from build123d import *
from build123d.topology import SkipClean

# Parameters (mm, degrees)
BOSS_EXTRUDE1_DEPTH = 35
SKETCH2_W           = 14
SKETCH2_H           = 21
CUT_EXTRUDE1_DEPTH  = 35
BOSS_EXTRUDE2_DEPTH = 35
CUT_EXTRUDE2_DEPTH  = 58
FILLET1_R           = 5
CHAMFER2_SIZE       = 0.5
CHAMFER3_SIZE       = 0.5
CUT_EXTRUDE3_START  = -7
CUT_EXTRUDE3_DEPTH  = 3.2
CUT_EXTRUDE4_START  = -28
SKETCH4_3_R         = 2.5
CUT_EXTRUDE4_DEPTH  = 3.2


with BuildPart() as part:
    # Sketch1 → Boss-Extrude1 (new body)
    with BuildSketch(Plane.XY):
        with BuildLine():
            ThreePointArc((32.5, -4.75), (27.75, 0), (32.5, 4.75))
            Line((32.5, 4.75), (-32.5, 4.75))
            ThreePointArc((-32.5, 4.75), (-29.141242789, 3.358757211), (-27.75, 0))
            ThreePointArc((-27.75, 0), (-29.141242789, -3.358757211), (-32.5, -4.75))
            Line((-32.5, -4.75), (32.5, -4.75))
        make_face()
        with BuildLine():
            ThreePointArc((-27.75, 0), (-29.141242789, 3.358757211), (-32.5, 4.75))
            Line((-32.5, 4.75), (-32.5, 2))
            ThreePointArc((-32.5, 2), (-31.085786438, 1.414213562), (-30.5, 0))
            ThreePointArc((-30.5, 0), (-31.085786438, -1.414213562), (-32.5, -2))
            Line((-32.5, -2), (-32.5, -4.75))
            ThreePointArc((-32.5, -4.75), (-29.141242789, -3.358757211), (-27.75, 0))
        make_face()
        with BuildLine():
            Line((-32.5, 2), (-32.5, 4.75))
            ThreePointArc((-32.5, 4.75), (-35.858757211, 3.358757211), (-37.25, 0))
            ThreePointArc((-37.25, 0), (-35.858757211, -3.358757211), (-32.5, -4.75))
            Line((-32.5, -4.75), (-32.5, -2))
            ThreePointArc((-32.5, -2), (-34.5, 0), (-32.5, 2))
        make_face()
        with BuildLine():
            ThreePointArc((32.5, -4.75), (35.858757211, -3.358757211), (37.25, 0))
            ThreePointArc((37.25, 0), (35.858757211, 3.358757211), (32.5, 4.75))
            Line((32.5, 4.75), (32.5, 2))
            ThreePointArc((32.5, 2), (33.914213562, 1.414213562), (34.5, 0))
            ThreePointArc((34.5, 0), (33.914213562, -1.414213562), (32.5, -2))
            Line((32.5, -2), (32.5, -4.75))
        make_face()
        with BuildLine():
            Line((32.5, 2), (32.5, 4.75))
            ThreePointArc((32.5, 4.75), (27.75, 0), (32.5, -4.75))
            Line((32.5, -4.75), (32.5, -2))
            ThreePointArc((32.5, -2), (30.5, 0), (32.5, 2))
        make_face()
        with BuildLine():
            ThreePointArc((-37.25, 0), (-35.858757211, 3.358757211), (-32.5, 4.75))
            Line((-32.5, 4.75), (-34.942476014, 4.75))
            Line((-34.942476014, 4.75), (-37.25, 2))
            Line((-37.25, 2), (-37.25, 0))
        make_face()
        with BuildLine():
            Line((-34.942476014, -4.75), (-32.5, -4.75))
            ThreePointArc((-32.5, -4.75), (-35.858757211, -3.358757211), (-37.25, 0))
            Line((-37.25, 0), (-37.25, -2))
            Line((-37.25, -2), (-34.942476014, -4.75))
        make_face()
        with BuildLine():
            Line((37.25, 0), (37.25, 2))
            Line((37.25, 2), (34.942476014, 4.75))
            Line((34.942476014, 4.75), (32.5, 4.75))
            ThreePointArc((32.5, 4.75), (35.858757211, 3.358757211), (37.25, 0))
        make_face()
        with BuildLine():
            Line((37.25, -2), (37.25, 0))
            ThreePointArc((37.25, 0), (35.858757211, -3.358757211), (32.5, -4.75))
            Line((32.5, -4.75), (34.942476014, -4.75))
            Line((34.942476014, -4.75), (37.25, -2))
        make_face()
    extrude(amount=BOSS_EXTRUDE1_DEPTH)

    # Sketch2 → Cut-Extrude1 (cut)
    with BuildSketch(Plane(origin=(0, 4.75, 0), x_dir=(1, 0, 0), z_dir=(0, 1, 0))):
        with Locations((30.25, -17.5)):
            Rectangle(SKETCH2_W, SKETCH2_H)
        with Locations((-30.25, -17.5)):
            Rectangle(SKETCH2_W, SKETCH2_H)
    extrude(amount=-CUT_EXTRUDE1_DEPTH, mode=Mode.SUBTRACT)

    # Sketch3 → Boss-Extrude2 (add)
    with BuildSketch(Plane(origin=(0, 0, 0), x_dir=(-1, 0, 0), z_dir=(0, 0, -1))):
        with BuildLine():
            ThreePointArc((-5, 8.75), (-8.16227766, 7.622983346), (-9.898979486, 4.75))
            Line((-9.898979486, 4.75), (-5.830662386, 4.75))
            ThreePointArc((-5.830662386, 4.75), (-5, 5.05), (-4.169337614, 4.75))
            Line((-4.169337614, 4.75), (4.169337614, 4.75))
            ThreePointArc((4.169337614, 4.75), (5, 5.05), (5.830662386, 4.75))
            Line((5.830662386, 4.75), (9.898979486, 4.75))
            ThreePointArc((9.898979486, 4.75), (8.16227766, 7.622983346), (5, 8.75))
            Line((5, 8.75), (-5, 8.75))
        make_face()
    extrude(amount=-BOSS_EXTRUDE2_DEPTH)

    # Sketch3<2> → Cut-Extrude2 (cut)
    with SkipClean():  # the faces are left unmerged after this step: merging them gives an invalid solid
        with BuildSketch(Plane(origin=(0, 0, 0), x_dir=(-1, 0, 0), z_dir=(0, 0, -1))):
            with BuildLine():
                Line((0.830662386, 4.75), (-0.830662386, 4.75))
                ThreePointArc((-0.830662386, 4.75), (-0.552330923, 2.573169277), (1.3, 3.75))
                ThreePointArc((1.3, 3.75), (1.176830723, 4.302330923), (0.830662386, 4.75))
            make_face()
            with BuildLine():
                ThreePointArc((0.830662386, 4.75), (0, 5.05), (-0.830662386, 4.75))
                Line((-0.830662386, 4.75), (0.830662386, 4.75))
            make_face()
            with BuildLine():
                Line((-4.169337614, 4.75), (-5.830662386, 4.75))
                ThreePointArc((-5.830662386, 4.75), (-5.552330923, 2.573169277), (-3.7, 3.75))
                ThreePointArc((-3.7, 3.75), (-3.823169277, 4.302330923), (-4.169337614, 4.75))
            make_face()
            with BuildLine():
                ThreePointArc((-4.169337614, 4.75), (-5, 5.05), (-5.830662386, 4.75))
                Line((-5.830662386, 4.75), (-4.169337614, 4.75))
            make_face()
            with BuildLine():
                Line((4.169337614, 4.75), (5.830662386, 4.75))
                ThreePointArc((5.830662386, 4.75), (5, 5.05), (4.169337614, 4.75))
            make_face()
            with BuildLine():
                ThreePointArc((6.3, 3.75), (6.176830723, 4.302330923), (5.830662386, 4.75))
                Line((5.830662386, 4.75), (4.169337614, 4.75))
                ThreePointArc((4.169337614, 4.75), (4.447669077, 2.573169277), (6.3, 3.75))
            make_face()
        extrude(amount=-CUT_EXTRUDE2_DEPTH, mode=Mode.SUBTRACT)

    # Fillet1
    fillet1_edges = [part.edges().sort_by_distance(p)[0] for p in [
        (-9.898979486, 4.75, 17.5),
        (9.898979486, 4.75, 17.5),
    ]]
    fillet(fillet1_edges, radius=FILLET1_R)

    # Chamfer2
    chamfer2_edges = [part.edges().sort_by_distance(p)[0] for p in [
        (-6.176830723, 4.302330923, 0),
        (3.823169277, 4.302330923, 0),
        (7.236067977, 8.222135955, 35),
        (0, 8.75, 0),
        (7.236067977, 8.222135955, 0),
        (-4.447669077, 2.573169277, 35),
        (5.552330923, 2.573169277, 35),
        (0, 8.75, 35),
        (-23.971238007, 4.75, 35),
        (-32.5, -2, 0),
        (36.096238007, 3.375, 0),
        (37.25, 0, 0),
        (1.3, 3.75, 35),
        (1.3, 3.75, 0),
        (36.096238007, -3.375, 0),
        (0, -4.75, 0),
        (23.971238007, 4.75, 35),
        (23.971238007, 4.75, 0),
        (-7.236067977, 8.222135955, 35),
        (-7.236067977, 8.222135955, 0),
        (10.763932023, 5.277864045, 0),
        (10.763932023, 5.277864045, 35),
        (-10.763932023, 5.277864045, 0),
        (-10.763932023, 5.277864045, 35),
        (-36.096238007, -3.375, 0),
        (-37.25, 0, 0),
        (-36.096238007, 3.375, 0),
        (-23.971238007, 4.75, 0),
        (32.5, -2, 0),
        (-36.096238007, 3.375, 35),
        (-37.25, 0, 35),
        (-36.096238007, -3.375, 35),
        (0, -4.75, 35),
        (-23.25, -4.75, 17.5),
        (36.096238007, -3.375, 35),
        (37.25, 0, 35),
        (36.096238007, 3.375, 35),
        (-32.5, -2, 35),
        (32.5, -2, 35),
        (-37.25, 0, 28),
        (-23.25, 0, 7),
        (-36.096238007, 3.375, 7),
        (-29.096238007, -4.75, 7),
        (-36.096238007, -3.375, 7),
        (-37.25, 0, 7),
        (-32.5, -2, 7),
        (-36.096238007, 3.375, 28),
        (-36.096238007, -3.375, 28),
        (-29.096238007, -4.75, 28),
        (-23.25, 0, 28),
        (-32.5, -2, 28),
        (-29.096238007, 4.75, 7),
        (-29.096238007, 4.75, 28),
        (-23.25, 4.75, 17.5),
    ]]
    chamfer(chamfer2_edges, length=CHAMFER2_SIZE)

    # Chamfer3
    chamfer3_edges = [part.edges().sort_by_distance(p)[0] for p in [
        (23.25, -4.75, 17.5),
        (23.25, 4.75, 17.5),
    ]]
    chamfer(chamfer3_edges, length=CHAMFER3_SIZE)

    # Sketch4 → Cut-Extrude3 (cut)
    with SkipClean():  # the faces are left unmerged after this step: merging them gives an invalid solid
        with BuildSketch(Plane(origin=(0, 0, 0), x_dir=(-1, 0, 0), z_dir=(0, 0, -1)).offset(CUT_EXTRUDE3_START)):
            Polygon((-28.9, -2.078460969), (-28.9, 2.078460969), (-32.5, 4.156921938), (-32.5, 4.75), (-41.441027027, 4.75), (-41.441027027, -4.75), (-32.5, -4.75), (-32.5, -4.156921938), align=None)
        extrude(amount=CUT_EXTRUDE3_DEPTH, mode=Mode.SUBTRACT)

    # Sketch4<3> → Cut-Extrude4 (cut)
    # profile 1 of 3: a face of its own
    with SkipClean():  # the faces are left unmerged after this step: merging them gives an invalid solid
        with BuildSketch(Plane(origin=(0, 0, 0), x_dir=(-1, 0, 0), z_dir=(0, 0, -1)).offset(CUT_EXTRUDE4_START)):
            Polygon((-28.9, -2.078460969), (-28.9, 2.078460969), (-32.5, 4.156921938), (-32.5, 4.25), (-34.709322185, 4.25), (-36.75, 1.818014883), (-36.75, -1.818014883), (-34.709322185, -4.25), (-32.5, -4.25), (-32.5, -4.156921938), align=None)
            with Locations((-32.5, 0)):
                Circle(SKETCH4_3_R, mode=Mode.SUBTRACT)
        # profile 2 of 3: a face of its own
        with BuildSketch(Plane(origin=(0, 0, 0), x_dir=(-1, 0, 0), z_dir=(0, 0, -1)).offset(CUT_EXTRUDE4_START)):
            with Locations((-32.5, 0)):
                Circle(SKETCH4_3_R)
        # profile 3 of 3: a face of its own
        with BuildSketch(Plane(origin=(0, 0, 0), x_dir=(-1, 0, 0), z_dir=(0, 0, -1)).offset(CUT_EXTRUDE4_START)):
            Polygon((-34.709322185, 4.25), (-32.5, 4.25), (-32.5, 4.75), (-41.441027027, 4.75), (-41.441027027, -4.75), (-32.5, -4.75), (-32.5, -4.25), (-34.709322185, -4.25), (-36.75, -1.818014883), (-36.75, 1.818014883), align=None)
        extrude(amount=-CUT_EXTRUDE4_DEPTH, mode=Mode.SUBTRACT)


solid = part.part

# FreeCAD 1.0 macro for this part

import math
import FreeCAD as App
import Part
import Sketcher
Q = App.Units.Quantity


def edges_at(feature, points):
    """Names of the edges that pass closest to the given points."""
    edges = feature.Shape.Edges
    near = lambda p: min(range(len(edges)), key=lambda i: edges[i].distToShape(Part.Vertex(*p))[0])
    return sorted({f"Edge{near(p) + 1}" for p in points})


def add_polygon(sketch, points):
    """Adds a closed chain of lines whose ends are joined by coincident constraints."""
    first, n = sketch.GeometryCount, len(points)
    for a, b in zip(points, points[1:] + points[:1]):
        sketch.addGeometry(Part.LineSegment(App.Vector(*a, 0), App.Vector(*b, 0)), False)
    for i in range(n):
        sketch.addConstraint(Sketcher.Constraint("Coincident", first + i, 2, first + (i + 1) % n, 1))

doc = App.newDocument("Part")
body = doc.addObject("PartDesign::Body", "Body")

sketch1 = body.newObject("Sketcher::SketchObject", "Sketch")
sketch1.AttachmentSupport = (doc.getObject("XY_Plane"), [""])
sketch1.MapMode = "FlatFace"
add_polygon(sketch1, [(37.25, 2), (34.942476, 4.75), (-34.942476, 4.75), (-37.25, 2), (-37.25, -2), (-34.942476, -4.75), (34.942476, -4.75), (37.25, -2)])
sketch1.addGeometry(Part.ArcOfCircle(Part.Circle(App.Vector(32.5, 0, 0), App.Vector(0, 0, 1), 2), math.radians(90), math.radians(270)), False)
sketch1.addGeometry(Part.ArcOfCircle(Part.Circle(App.Vector(32.5, 0, 0), App.Vector(0, 0, 1), 2), math.radians(0), math.radians(90)), False)
sketch1.addGeometry(Part.ArcOfCircle(Part.Circle(App.Vector(32.5, 0, 0), App.Vector(0, 0, 1), 2), math.radians(-90), math.radians(0)), False)
sketch1.addGeometry(Part.ArcOfCircle(Part.Circle(App.Vector(-32.5, 0, 0), App.Vector(0, 0, 1), 2), math.radians(90), math.radians(270)), False)
sketch1.addGeometry(Part.ArcOfCircle(Part.Circle(App.Vector(-32.5, 0, 0), App.Vector(0, 0, 1), 2), math.radians(0), math.radians(90)), False)
sketch1.addGeometry(Part.ArcOfCircle(Part.Circle(App.Vector(-32.5, 0, 0), App.Vector(0, 0, 1), 2), math.radians(-90), math.radians(0)), False)
sketch1.addConstraint([
    Sketcher.Constraint("Tangent", 8, 1, 9, 2),
    Sketcher.Constraint("Tangent", 9, 1, 10, 2),
    Sketcher.Constraint("Tangent", 10, 1, 8, 2),
    Sketcher.Constraint("Tangent", 11, 1, 12, 2),
    Sketcher.Constraint("Tangent", 12, 1, 13, 2),
    Sketcher.Constraint("Tangent", 13, 1, 11, 2),
    Sketcher.Constraint("Horizontal", 1),
    Sketcher.Constraint("Vertical", 3),
    Sketcher.Constraint("Horizontal", 5),
    Sketcher.Constraint("Vertical", 7),
    Sketcher.Constraint("Equal", 10, 11),
    Sketcher.Constraint("Symmetric", 8, 3, 11, 3, -1, 1),
    Sketcher.Constraint("Symmetric", 0, 2, 4, 2, -1, 1),
    Sketcher.Constraint("Symmetric", 2, 2, 6, 2, -1, 1),
    Sketcher.Constraint("Symmetric", 8, 1, 11, 1, -2),
    Sketcher.Constraint("PointOnObject", 9, 1, -1),
    Sketcher.Constraint("PointOnObject", 12, 1, -1),
    Sketcher.Constraint("Parallel", 0, 4),
    Sketcher.Constraint("Parallel", 2, 6),
    Sketcher.Constraint("Horizontal", 3, 2, 6, 2),
    Sketcher.Constraint("Horizontal", 7, 2, 8, 1),
    Sketcher.Constraint("Vertical", 1, 2, 4, 2),
    Sketcher.Constraint("Vertical", 10, 3, 8, 1),
    Sketcher.Constraint("Vertical", 8, 1, 10, 1),
    Sketcher.Constraint("Vertical", 11, 1, 13, 1),
    Sketcher.Constraint("Radius", 8, 2.0),
    Sketcher.Constraint("Angle", 0, Q("130 deg")),
    Sketcher.Constraint("DistanceX", 11, 3, 9, 3, 65.0),
    Sketcher.Constraint("DistanceY", 5, 2, 0, 2, 9.5),
    Sketcher.Constraint("DistanceX", 2, 2, -1, 1, 37.25),
])
pad1 = body.newObject("PartDesign::Pad", "Pad")
pad1.Profile = sketch1
pad1.Length = 35

sketch2 = body.newObject("Sketcher::SketchObject", "Sketch001")
sketch2.AttachmentSupport = (doc.getObject("XZ_Plane"), [""])
sketch2.MapMode = "FlatFace"
sketch2.AttachmentOffset = App.Placement(App.Vector(0, 0, -4.75), App.Rotation())
add_polygon(sketch2, [(23.25, 7), (23.25, 28), (37.25, 28), (37.25, 7)])
add_polygon(sketch2, [(-37.25, 7), (-37.25, 28), (-23.25, 28), (-23.25, 7)])
sketch2.addConstraint([
    Sketcher.Constraint("Vertical", 0),
    Sketcher.Constraint("Horizontal", 1),
    Sketcher.Constraint("Vertical", 2),
    Sketcher.Constraint("Horizontal", 3),
    Sketcher.Constraint("Vertical", 4),
    Sketcher.Constraint("Horizontal", 5),
    Sketcher.Constraint("Vertical", 6),
    Sketcher.Constraint("Horizontal", 7),
    Sketcher.Constraint("Symmetric", 1, 2, 4, 2, -2),
    Sketcher.Constraint("Symmetric", 3, 2, 6, 2, -2),
    Sketcher.Constraint("DistanceX", 1, 1, 1, 2, 14.0),
    Sketcher.Constraint("DistanceY", 0, 1, 0, 2, 21.0),
    Sketcher.Constraint("DistanceY", -1, 1, 0, 2, 28.0),
    Sketcher.Constraint("DistanceX", 4, 2, 0, 2, 60.5),
])
pocket1 = body.newObject("PartDesign::Pocket", "Pocket")
pocket1.Profile = sketch2
pocket1.Length = 35
pocket1.Reversed = True

sketch3 = body.newObject("Sketcher::SketchObject", "Sketch002")
sketch3.AttachmentSupport = (doc.getObject("XY_Plane"), [""])
sketch3.MapMode = "FlatFace"
sketch3.addGeometry([
    Part.ArcOfCircle(Part.Circle(App.Vector(5, 3.75, 0), App.Vector(0, 0, 1), 5), math.radians(11.536959), math.radians(90)),
    Part.LineSegment(App.Vector(9.898979, 4.75, 0), App.Vector(5.830662, 4.75, 0)),
    Part.ArcOfCircle(Part.Circle(App.Vector(5, 3.75, 0), App.Vector(0, 0, 1), 1.3), math.radians(50.284863), math.radians(129.715137)),
    Part.LineSegment(App.Vector(4.169338, 4.75, 0), App.Vector(-4.169338, 4.75, 0)),
    Part.ArcOfCircle(Part.Circle(App.Vector(-5, 3.75, 0), App.Vector(0, 0, 1), 1.3), math.radians(50.284863), math.radians(129.715137)),
    Part.LineSegment(App.Vector(-5.830662, 4.75, 0), App.Vector(-9.898979, 4.75, 0)),
    Part.ArcOfCircle(Part.Circle(App.Vector(-5, 3.75, 0), App.Vector(0, 0, 1), 5), math.radians(90), math.radians(168.463041)),
    Part.LineSegment(App.Vector(-5, 8.75, 0), App.Vector(5, 8.75, 0)),
], False)
sketch3.addConstraint([
    Sketcher.Constraint("Coincident", 0, 1, 1, 1),
    Sketcher.Constraint("Coincident", 1, 2, 2, 1),
    Sketcher.Constraint("Coincident", 2, 2, 3, 1),
    Sketcher.Constraint("Coincident", 3, 2, 4, 1),
    Sketcher.Constraint("Coincident", 4, 2, 5, 1),
    Sketcher.Constraint("Coincident", 5, 2, 6, 2),
    Sketcher.Constraint("Tangent", 6, 1, 7, 1),
    Sketcher.Constraint("Tangent", 7, 2, 0, 2),
    Sketcher.Constraint("Horizontal", 1),
    Sketcher.Constraint("Horizontal", 3),
    Sketcher.Constraint("Horizontal", 5),
    Sketcher.Constraint("Horizontal", 7),
    Sketcher.Constraint("Coincident", 2, 3, 0, 3),
    Sketcher.Constraint("Coincident", 6, 3, 4, 3),
    Sketcher.Constraint("Equal", 2, 4),
    Sketcher.Constraint("Equal", 0, 6),
    Sketcher.Constraint("Symmetric", 1, 2, 4, 2, -2),
    Sketcher.Constraint("Horizontal", 1, 2, 2, 2),
    Sketcher.Constraint("Radius", 0, 5.0),
    Sketcher.Constraint("Radius", 2, 1.3),
    Sketcher.Constraint("DistanceX", 7, 1, 7, 2, 10.0),
    Sketcher.Constraint("DistanceY", 2, 3, 0, 1, 1.0),
    Sketcher.Constraint("DistanceY", -1, 1, 0, 3, 3.75),
])
pad2 = body.newObject("PartDesign::Pad", "Pad001")
pad2.Profile = sketch3
pad2.Length = 35

sketch4 = body.newObject("Sketcher::SketchObject", "Sketch003")
sketch4.AttachmentSupport = (doc.getObject("XY_Plane"), [""])
sketch4.MapMode = "FlatFace"
sketch4.addGeometry([
    Part.LineSegment(App.Vector(-0.830662, 4.75, 0), App.Vector(0.830662, 4.75, 0)),
    Part.ArcOfCircle(Part.Circle(App.Vector(0, 3.75, 0), App.Vector(0, 0, 1), 1.3), math.radians(180), math.radians(410.284863)),
    Part.ArcOfCircle(Part.Circle(App.Vector(0, 3.75, 0), App.Vector(0, 0, 1), 1.3), math.radians(129.715137), math.radians(180)),
    Part.ArcOfCircle(Part.Circle(App.Vector(0, 3.75, 0), App.Vector(0, 0, 1), 1.3), math.radians(50.284863), math.radians(129.715137)),
    Part.LineSegment(App.Vector(0.830662, 4.75, 0), App.Vector(-0.830662, 4.75, 0)),
    Part.LineSegment(App.Vector(4.169338, 4.75, 0), App.Vector(5.830662, 4.75, 0)),
    Part.ArcOfCircle(Part.Circle(App.Vector(5, 3.75, 0), App.Vector(0, 0, 1), 1.3), math.radians(180), math.radians(410.284863)),
    Part.ArcOfCircle(Part.Circle(App.Vector(5, 3.75, 0), App.Vector(0, 0, 1), 1.3), math.radians(129.715137), math.radians(180)),
    Part.ArcOfCircle(Part.Circle(App.Vector(5, 3.75, 0), App.Vector(0, 0, 1), 1.3), math.radians(50.284863), math.radians(129.715137)),
    Part.LineSegment(App.Vector(5.830662, 4.75, 0), App.Vector(4.169338, 4.75, 0)),
    Part.LineSegment(App.Vector(-4.169338, 4.75, 0), App.Vector(-5.830662, 4.75, 0)),
    Part.ArcOfCircle(Part.Circle(App.Vector(-5, 3.75, 0), App.Vector(0, 0, 1), 1.3), math.radians(50.284863), math.radians(129.715137)),
    Part.ArcOfCircle(Part.Circle(App.Vector(-5, 3.75, 0), App.Vector(0, 0, 1), 1.3), math.radians(129.715137), math.radians(180)),
    Part.LineSegment(App.Vector(-5.830662, 4.75, 0), App.Vector(-4.169338, 4.75, 0)),
    Part.ArcOfCircle(Part.Circle(App.Vector(-5, 3.75, 0), App.Vector(0, 0, 1), 1.3), math.radians(180), math.radians(410.284863)),
], False)
sketch4.addConstraint([
    Sketcher.Constraint("Coincident", 0, 2, 1, 2),
    Sketcher.Constraint("Tangent", 1, 1, 2, 2),
    Sketcher.Constraint("Coincident", 2, 1, 0, 1),
    Sketcher.Constraint("Coincident", 3, 1, 4, 1),
    Sketcher.Constraint("Coincident", 4, 2, 3, 2),
    Sketcher.Constraint("Coincident", 5, 2, 6, 2),
    Sketcher.Constraint("Tangent", 6, 1, 7, 2),
    Sketcher.Constraint("Coincident", 7, 1, 5, 1),
    Sketcher.Constraint("Coincident", 8, 1, 9, 1),
    Sketcher.Constraint("Coincident", 9, 2, 8, 2),
    Sketcher.Constraint("Coincident", 10, 1, 11, 1),
    Sketcher.Constraint("Coincident", 11, 2, 10, 2),
    Sketcher.Constraint("Coincident", 12, 1, 13, 1),
    Sketcher.Constraint("Coincident", 13, 2, 14, 2),
    Sketcher.Constraint("Tangent", 14, 1, 12, 2),
    Sketcher.Constraint("Horizontal", 0),
    Sketcher.Constraint("Horizontal", 4),
    Sketcher.Constraint("Horizontal", 5),
    Sketcher.Constraint("Horizontal", 9),
    Sketcher.Constraint("Horizontal", 10),
    Sketcher.Constraint("Horizontal", 13),
    Sketcher.Constraint("Coincident", 3, 3, 1, 3),
    Sketcher.Constraint("Coincident", 8, 3, 6, 3),
    Sketcher.Constraint("Coincident", 12, 3, 11, 3),
    Sketcher.Constraint("Coincident", 3, 1, 0, 2),
    Sketcher.Constraint("Coincident", 8, 1, 5, 2),
    Sketcher.Constraint("Coincident", 12, 1, 11, 2),
    Sketcher.Constraint("Equal", 1, 2),
    Sketcher.Constraint("Equal", 3, 6),
    Sketcher.Constraint("Equal", 6, 7),
    Sketcher.Constraint("Equal", 8, 11),
    Sketcher.Constraint("Equal", 12, 14),
    Sketcher.Constraint("Symmetric", 6, 3, 11, 3, -2),
    Sketcher.Constraint("PointOnObject", 1, 3, -2),
    Sketcher.Constraint("Horizontal", 3, 3, 6, 3),
    Sketcher.Constraint("Horizontal", 14, 3, 1, 1),
    Sketcher.Constraint("Horizontal", 4, 2, 5, 2),
    Sketcher.Constraint("Horizontal", 1, 1, 6, 1),
    Sketcher.Constraint("Horizontal", 9, 2, 10, 1),
    Sketcher.Constraint("Horizontal", 6, 1, 14, 1),
    Sketcher.Constraint("Radius", 1, 1.3),
    Sketcher.Constraint("DistanceX", -1, 1, 6, 3, 5.0),
    Sketcher.Constraint("DistanceY", 3, 3, 0, 2, 1.0),
    Sketcher.Constraint("DistanceY", -1, 1, 1, 3, 3.75),
])
pocket2 = body.newObject("PartDesign::Pocket", "Pocket001")
pocket2.Profile = sketch4
pocket2.Length = 58
pocket2.Reversed = True
doc.recompute()

fillet = body.newObject("PartDesign::Fillet", "Fillet")
fillet.Base = (pocket2, edges_at(pocket2, [(-9.899, 4.75, 17.5), (9.899, 4.75, 17.5)]))
fillet.Radius = 5
doc.recompute()

chamfer = body.newObject("PartDesign::Chamfer", "Chamfer")
chamfer.Base = (fillet, edges_at(fillet, [
    (-6.177, 4.302, 0),
    (3.823, 4.302, 0),
    (7.236, 8.222, 35),
    (0, 8.75, 0),
    (7.236, 8.222, 0),
    (-4.448, 2.573, 35),
    (5.552, 2.573, 35),
    (0, 8.75, 35),
    (-23.971, 4.75, 35),
    (-34.5, 0, 0),
    (36.096, 3.375, 0),
    (37.25, 0, 0),
    (0.552, 2.573, 35),
    (0.552, 2.573, 0),
    (36.096, -3.375, 0),
    (0, -4.75, 0),
    (23.971, 4.75, 35),
    (23.971, 4.75, 0),
    (-7.236, 8.222, 35),
    (-7.236, 8.222, 0),
    (10.764, 5.278, 0),
    (10.764, 5.278, 35),
    (-10.764, 5.278, 0),
    (-10.764, 5.278, 35),
    (-36.096, -3.375, 0),
    (-37.25, 0, 0),
    (-36.096, 3.375, 0),
    (-23.971, 4.75, 0),
    (30.5, 0, 0),
    (-36.096, 3.375, 35),
    (-37.25, 0, 35),
    (-36.096, -3.375, 35),
    (0, -4.75, 35),
    (-23.25, -4.75, 17.5),
    (36.096, -3.375, 35),
    (37.25, 0, 35),
    (36.096, 3.375, 35),
    (-34.5, 0, 35),
    (30.5, 0, 35),
    (-37.25, 0, 28),
    (-23.25, 0, 7),
    (-36.096, 3.375, 7),
    (-29.096, -4.75, 7),
    (-36.096, -3.375, 7),
    (-37.25, 0, 7),
    (-34.5, 0, 7),
    (-36.096, 3.375, 28),
    (-36.096, -3.375, 28),
    (-29.096, -4.75, 28),
    (-23.25, 0, 28),
    (-31.086, -1.414, 28),
    (-29.096, 4.75, 7),
    (-29.096, 4.75, 28),
    (-23.25, 4.75, 17.5),
]))
chamfer.Size = 0.5
doc.recompute()

chamfer2 = body.newObject("PartDesign::Chamfer", "Chamfer001")
chamfer2.Base = (chamfer, edges_at(chamfer, [(23.25, -4.75, 17.5), (23.25, 4.75, 17.5)]))
chamfer2.Size = 0.5

sketch5 = body.newObject("Sketcher::SketchObject", "Sketch004")
sketch5.AttachmentSupport = (doc.getObject("XY_Plane"), [""])
sketch5.MapMode = "FlatFace"
sketch5.AttachmentOffset = App.Placement(App.Vector(0, 0, 7), App.Rotation())
add_polygon(sketch5, [(28.9, -2.078461), (28.9, 2.078461), (32.5, 4.156922), (32.5, 4.75), (41.441027, 4.75), (41.441027, -4.75), (32.5, -4.75), (32.5, -4.156922)])
sketch5.addConstraint([
    Sketcher.Constraint("Vertical", 0),
    Sketcher.Constraint("Vertical", 2),
    Sketcher.Constraint("Horizontal", 3),
    Sketcher.Constraint("Vertical", 4),
    Sketcher.Constraint("Horizontal", 5),
    Sketcher.Constraint("Vertical", 6),
    Sketcher.Constraint("Symmetric", 2, 2, 5, 2, -1),
    Sketcher.Constraint("Equal", 2, 6),
    Sketcher.Constraint("Equal", 1, 7),
    Sketcher.Constraint("Angle", 1, Q("30 deg")),
    Sketcher.Constraint("DistanceY", 4, 2, 4, 1, 9.5),
    Sketcher.Constraint("DistanceX", -1, 1, 0, 2, 28.9),
    Sketcher.Constraint("DistanceX", -1, 1, 1, 2, 32.5),
    Sketcher.Constraint("DistanceY", 0, 1, 0, 2, 4.156922),
    Sketcher.Constraint("DistanceX", 3, 1, 3, 2, 8.941027),
])
pocket3 = body.newObject("PartDesign::Pocket", "Pocket002")
pocket3.Profile = sketch5
pocket3.Length = 3.2

sketch6 = body.newObject("Sketcher::SketchObject", "Sketch005")
sketch6.AttachmentSupport = (doc.getObject("XY_Plane"), [""])
sketch6.MapMode = "FlatFace"
sketch6.AttachmentOffset = App.Placement(App.Vector(0, 0, 28), App.Rotation())
add_polygon(sketch6, [(28.9, -2.078461), (28.9, 2.078461), (32.5, 4.156922), (32.5, 4.75), (41.441027, 4.75), (41.441027, -4.75), (32.5, -4.75), (32.5, -4.156922)])
sketch6.addConstraint([
    Sketcher.Constraint("Vertical", 0),
    Sketcher.Constraint("Vertical", 2),
    Sketcher.Constraint("Horizontal", 3),
    Sketcher.Constraint("Vertical", 4),
    Sketcher.Constraint("Horizontal", 5),
    Sketcher.Constraint("Vertical", 6),
    Sketcher.Constraint("Symmetric", 2, 2, 5, 2, -1),
    Sketcher.Constraint("Equal", 2, 6),
    Sketcher.Constraint("Equal", 1, 7),
    Sketcher.Constraint("Angle", 1, Q("30 deg")),
    Sketcher.Constraint("DistanceY", 4, 2, 4, 1, 9.5),
    Sketcher.Constraint("DistanceX", -1, 1, 0, 2, 28.9),
    Sketcher.Constraint("DistanceX", -1, 1, 1, 2, 32.5),
    Sketcher.Constraint("DistanceY", 0, 1, 0, 2, 4.156922),
    Sketcher.Constraint("DistanceX", 3, 1, 3, 2, 8.941027),
])
pocket4 = body.newObject("PartDesign::Pocket", "Pocket003")
pocket4.Profile = sketch6
pocket4.Length = 3.2
pocket4.Reversed = True

doc.recompute()
